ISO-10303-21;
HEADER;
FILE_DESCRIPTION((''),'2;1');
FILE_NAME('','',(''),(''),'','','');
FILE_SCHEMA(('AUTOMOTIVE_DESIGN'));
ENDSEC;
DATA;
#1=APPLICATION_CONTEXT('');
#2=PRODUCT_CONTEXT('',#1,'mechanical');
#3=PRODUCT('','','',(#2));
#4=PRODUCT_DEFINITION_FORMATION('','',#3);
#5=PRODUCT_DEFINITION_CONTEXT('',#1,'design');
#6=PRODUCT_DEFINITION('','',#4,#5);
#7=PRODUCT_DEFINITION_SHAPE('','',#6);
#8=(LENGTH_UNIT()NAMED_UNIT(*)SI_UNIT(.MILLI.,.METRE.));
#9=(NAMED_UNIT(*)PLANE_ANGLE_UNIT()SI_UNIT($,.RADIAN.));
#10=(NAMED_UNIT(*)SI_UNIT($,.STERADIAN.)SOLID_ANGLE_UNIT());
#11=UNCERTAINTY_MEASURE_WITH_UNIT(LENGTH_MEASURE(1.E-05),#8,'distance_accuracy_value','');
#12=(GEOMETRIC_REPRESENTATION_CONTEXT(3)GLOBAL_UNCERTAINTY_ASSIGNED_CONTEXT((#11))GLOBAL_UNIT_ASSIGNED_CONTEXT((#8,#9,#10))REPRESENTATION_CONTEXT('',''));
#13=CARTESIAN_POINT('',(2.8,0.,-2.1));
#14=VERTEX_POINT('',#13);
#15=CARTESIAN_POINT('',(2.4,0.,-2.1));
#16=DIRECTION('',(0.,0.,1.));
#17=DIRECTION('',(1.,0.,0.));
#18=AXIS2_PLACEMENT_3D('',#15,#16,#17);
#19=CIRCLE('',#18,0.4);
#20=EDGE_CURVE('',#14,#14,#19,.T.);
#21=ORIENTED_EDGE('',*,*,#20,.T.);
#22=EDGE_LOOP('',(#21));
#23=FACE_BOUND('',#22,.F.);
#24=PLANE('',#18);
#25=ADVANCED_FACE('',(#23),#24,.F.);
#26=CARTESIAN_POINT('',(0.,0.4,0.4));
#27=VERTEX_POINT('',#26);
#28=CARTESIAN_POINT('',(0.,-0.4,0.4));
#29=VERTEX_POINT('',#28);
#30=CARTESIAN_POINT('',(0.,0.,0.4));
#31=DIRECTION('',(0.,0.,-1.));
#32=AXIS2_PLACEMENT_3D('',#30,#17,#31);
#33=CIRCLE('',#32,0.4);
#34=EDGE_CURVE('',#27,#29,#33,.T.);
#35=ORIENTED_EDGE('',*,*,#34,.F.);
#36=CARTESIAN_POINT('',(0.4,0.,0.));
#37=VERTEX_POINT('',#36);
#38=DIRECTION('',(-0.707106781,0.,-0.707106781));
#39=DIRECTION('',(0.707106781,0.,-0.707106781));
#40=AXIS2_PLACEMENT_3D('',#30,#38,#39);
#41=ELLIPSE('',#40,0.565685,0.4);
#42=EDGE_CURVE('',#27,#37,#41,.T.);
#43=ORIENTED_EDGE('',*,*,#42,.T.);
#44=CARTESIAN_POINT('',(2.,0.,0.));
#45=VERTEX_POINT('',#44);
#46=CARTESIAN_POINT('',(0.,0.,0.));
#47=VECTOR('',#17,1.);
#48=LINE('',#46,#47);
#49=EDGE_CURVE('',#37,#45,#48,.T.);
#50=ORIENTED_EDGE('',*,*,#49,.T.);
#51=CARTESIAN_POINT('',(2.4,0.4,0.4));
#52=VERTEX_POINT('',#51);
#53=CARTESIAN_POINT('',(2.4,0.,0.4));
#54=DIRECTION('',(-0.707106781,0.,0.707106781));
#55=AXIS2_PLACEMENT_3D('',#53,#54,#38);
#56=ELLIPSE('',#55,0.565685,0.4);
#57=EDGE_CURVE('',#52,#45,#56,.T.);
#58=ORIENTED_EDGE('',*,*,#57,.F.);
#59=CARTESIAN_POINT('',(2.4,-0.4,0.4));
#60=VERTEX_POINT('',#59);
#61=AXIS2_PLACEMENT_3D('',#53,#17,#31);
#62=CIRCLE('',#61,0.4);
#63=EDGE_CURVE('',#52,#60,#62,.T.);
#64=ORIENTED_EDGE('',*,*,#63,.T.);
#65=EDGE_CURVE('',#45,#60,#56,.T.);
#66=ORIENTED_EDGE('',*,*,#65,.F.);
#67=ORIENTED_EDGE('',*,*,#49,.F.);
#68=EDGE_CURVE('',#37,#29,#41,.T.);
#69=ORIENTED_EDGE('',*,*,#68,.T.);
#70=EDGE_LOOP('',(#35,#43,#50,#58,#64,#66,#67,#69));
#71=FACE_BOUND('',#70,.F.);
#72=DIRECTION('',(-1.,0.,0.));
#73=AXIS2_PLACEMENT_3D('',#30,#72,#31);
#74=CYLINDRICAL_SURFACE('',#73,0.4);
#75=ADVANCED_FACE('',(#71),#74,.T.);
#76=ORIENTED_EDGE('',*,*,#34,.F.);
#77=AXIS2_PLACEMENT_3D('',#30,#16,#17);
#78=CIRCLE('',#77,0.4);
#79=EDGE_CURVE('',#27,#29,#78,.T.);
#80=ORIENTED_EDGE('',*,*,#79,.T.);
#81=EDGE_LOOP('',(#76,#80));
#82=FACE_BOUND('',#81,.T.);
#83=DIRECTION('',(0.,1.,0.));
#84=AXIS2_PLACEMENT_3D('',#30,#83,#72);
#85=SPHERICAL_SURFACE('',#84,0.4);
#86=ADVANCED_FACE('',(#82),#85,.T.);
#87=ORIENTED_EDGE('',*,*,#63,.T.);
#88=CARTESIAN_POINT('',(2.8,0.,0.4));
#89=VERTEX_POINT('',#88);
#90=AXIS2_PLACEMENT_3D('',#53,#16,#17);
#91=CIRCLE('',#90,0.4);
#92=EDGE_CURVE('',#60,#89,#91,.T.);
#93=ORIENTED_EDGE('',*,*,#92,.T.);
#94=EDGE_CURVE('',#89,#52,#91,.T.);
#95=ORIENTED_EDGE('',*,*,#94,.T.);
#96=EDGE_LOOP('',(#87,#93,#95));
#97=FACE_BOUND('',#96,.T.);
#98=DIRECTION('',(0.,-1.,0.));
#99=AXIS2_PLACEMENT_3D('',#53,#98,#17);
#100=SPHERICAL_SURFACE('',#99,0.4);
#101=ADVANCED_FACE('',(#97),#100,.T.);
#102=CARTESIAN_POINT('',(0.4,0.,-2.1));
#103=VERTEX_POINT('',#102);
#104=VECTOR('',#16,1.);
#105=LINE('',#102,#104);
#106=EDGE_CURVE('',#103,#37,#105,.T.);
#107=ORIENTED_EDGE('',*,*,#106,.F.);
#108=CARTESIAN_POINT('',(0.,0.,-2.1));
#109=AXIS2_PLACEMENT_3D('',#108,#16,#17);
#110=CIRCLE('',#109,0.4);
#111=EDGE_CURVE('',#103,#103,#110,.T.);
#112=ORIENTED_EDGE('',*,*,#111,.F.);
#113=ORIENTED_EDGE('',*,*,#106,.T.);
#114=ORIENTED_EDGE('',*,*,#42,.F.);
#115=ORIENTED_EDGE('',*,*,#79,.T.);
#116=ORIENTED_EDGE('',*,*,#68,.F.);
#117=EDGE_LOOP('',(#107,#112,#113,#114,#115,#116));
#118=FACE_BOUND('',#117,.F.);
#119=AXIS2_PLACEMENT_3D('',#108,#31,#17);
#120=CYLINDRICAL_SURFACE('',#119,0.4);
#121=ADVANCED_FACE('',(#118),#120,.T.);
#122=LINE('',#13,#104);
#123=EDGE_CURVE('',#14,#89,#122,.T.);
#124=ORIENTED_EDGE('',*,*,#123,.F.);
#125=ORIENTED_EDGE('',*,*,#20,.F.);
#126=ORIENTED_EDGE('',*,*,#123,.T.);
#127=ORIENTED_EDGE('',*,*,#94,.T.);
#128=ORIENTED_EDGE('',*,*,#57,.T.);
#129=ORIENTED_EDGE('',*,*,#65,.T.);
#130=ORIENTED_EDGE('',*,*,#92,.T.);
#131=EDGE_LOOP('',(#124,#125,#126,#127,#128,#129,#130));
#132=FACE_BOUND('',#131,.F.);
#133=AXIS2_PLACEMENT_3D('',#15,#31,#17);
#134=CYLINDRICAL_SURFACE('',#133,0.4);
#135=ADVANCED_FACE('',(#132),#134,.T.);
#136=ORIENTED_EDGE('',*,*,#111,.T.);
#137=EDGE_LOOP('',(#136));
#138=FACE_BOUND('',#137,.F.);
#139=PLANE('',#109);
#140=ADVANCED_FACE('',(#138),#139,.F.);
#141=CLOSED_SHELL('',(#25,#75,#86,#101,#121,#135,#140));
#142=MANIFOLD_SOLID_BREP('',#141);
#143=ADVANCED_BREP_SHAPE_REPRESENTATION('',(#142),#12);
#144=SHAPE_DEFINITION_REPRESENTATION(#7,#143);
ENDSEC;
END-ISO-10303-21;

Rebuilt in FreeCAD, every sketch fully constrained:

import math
import FreeCAD as App
import Part
import Sketcher

V = App.Vector

doc = App.newDocument("Part")
params = doc.addObject("Spreadsheet::Sheet", "Params")
for row, (alias, value) in enumerate([
    ("sketch1_diameter", "0.8 mm"),
    ("pad1_length", "2.4 mm"),
    ("sketch2_diameter", "0.8 mm"),
    ("pad2_length", "2.5 mm"),
    ("sketch3_radius", "0.4 mm"),
    ("revolution_angle", "90 deg"),
    ("sketch4_radius", "0.4 mm"),
    ("revolution2_angle", "90 deg"),
    ("sketch5_diameter", "0.8 mm"),
    ("pad3_length", "2.5 mm"),
], start=1):
    params.set(f"A{row}", alias)
    params.set(f"B{row}", "=" + value)
    params.setAlias(f"B{row}", alias)

body = doc.addObject("PartDesign::Body", "Body")

# Sketch on YZ plane
sketch1 = body.newObject("Sketcher::SketchObject", "Sketch")
sketch1.AttachmentSupport = (doc.getObject("YZ_Plane"), [""])
sketch1.MapMode = "FlatFace"
sketch1.addGeometry(Part.Circle(V(0, 0.4, 0), V(0, 0, 1), 0.4), False)
sketch1.addConstraint([
    Sketcher.Constraint("PointOnObject", 0, 3, -2),
    Sketcher.Constraint("Diameter", 0, 0.8),
    Sketcher.Constraint("DistanceY", -1, 1, 0, 3, 0.4),
])
sketch1.setExpression("Constraints[1]", "Params.sketch1_diameter")
pad1 = body.newObject("PartDesign::Pad", "Pad")
pad1.Profile = sketch1
pad1.setExpression("Length", "Params.pad1_length")
body2 = doc.addObject("PartDesign::Body", "Body001")

# Sketch on XY plane
sketch2 = body2.newObject("Sketcher::SketchObject", "Sketch001")
sketch2.AttachmentSupport = (doc.getObject("XY_Plane001"), [""])
sketch2.MapMode = "FlatFace"
sketch2.AttachmentOffset = App.Placement(V(0, 0, -2.1), App.Rotation())
sketch2.addGeometry(Part.Circle(V(2.4, 0, 0), V(0, 0, 1), 0.4), False)
sketch2.addConstraint([
    Sketcher.Constraint("PointOnObject", 0, 3, -1),
    Sketcher.Constraint("Diameter", 0, 0.8),
    Sketcher.Constraint("DistanceX", -1, 1, 0, 3, 2.4),
])
sketch2.setExpression("Constraints[1]", "Params.sketch2_diameter")
pad2 = body2.newObject("PartDesign::Pad", "Pad001")
pad2.Profile = sketch2
pad2.setExpression("Length", "Params.pad2_length")
body3 = doc.addObject("PartDesign::Body", "Body002")

# Sketch on XY plane
sketch3 = body3.newObject("Sketcher::SketchObject", "Sketch002")
sketch3.AttachmentSupport = (doc.getObject("XY_Plane002"), [""])
sketch3.MapMode = "FlatFace"
sketch3.AttachmentOffset = App.Placement(V(0, 0, 0.4), App.Rotation())
sketch3.addGeometry([
    Part.ArcOfCircle(Part.Circle(V(0, 0, 0), V(0, 0, 1), 0.4), math.radians(90), math.radians(270)),
    Part.LineSegment(V(0, 0.4, 0), V(0, -0.4, 0)),
], False)
sketch3.addConstraint([
    Sketcher.Constraint("Coincident", 0, 1, 1, 1),
    Sketcher.Constraint("Coincident", 1, 2, 0, 2),
    Sketcher.Constraint("Vertical", 1),
    Sketcher.Constraint("Coincident", 0, 3, -1, 1),
    Sketcher.Constraint("PointOnObject", 0, 1, -2),
    Sketcher.Constraint("Radius", 0, 0.4),
])
sketch3.setExpression("Constraints[5]", "Params.sketch3_radius")
revolution = body3.newObject("PartDesign::Revolution", "Revolution")
revolution.Profile = sketch3
revolution.ReferenceAxis = (sketch3, ["V_Axis"])
revolution.setExpression("Angle", "Params.revolution_angle")
body4 = doc.addObject("PartDesign::Body", "Body003")

# Sketch on XY plane
sketch4 = body4.newObject("Sketcher::SketchObject", "Sketch003")
sketch4.AttachmentSupport = (doc.getObject("XY_Plane003"), [""])
sketch4.MapMode = "FlatFace"
sketch4.AttachmentOffset = App.Placement(V(0, 0, 0.4), App.Rotation())
sketch4.addGeometry([
    Part.ArcOfCircle(Part.Circle(V(2.4, 0, 0), V(0, 0, 1), 0.4), math.radians(-90), math.radians(90)),
    Part.LineSegment(V(2.4, -0.4, 0), V(2.4, 0.4, 0)),
], False)
sketch4.addGeometry(Part.LineSegment(V(2.4, 0.4, 0), V(2.4, -0.4, 0)), True)  # axis
sketch4.addConstraint([
    Sketcher.Constraint("Coincident", 0, 1, 1, 1),
    Sketcher.Constraint("Coincident", 1, 2, 0, 2),
    Sketcher.Constraint("Vertical", 1),
    Sketcher.Constraint("Vertical", 2),
    Sketcher.Constraint("Coincident", 2, 1, 1, 2),
    Sketcher.Constraint("PointOnObject", 0, 3, -1),
    Sketcher.Constraint("Equal", 1, 2),
    Sketcher.Constraint("Radius", 0, 0.4),
    Sketcher.Constraint("DistanceX", -1, 1, 0, 3, 2.4),
    Sketcher.Constraint("DistanceX", -1, 1, 0, 1, 2.4),
])
sketch4.setExpression("Constraints[7]", "Params.sketch4_radius")
revolution2 = body4.newObject("PartDesign::Revolution", "Revolution001")
revolution2.Profile = sketch4
revolution2.ReferenceAxis = (sketch4, ["Axis0"])
revolution2.setExpression("Angle", "Params.revolution2_angle")
body5 = doc.addObject("PartDesign::Body", "Body004")

# Sketch on XY plane
sketch5 = body5.newObject("Sketcher::SketchObject", "Sketch004")
sketch5.AttachmentSupport = (doc.getObject("XY_Plane004"), [""])
sketch5.MapMode = "FlatFace"
sketch5.AttachmentOffset = App.Placement(V(0, 0, -2.1), App.Rotation())
sketch5.addGeometry(Part.Circle(V(0, 0, 0), V(0, 0, 1), 0.4), False)
sketch5.addConstraint([
    Sketcher.Constraint("Coincident", 0, 3, -1, 1),
    Sketcher.Constraint("Diameter", 0, 0.8),
])
sketch5.setExpression("Constraints[1]", "Params.sketch5_diameter")
pad3 = body5.newObject("PartDesign::Pad", "Pad002")
pad3.Profile = sketch5
pad3.setExpression("Length", "Params.pad3_length")
doc.recompute()

boolean = body5.newObject("PartDesign::Boolean", "Boolean")
boolean.Type = "Fuse"
boolean.addObjects([body])
doc.recompute()

boolean2 = body5.newObject("PartDesign::Boolean", "Boolean001")
boolean2.Type = "Fuse"
boolean2.addObjects([body2])
doc.recompute()

boolean3 = body5.newObject("PartDesign::Boolean", "Boolean002")
boolean3.Type = "Fuse"
boolean3.addObjects([body3])
doc.recompute()

boolean4 = body5.newObject("PartDesign::Boolean", "Boolean003")
boolean4.Type = "Fuse"
boolean4.addObjects([body4])

doc.recompute()
